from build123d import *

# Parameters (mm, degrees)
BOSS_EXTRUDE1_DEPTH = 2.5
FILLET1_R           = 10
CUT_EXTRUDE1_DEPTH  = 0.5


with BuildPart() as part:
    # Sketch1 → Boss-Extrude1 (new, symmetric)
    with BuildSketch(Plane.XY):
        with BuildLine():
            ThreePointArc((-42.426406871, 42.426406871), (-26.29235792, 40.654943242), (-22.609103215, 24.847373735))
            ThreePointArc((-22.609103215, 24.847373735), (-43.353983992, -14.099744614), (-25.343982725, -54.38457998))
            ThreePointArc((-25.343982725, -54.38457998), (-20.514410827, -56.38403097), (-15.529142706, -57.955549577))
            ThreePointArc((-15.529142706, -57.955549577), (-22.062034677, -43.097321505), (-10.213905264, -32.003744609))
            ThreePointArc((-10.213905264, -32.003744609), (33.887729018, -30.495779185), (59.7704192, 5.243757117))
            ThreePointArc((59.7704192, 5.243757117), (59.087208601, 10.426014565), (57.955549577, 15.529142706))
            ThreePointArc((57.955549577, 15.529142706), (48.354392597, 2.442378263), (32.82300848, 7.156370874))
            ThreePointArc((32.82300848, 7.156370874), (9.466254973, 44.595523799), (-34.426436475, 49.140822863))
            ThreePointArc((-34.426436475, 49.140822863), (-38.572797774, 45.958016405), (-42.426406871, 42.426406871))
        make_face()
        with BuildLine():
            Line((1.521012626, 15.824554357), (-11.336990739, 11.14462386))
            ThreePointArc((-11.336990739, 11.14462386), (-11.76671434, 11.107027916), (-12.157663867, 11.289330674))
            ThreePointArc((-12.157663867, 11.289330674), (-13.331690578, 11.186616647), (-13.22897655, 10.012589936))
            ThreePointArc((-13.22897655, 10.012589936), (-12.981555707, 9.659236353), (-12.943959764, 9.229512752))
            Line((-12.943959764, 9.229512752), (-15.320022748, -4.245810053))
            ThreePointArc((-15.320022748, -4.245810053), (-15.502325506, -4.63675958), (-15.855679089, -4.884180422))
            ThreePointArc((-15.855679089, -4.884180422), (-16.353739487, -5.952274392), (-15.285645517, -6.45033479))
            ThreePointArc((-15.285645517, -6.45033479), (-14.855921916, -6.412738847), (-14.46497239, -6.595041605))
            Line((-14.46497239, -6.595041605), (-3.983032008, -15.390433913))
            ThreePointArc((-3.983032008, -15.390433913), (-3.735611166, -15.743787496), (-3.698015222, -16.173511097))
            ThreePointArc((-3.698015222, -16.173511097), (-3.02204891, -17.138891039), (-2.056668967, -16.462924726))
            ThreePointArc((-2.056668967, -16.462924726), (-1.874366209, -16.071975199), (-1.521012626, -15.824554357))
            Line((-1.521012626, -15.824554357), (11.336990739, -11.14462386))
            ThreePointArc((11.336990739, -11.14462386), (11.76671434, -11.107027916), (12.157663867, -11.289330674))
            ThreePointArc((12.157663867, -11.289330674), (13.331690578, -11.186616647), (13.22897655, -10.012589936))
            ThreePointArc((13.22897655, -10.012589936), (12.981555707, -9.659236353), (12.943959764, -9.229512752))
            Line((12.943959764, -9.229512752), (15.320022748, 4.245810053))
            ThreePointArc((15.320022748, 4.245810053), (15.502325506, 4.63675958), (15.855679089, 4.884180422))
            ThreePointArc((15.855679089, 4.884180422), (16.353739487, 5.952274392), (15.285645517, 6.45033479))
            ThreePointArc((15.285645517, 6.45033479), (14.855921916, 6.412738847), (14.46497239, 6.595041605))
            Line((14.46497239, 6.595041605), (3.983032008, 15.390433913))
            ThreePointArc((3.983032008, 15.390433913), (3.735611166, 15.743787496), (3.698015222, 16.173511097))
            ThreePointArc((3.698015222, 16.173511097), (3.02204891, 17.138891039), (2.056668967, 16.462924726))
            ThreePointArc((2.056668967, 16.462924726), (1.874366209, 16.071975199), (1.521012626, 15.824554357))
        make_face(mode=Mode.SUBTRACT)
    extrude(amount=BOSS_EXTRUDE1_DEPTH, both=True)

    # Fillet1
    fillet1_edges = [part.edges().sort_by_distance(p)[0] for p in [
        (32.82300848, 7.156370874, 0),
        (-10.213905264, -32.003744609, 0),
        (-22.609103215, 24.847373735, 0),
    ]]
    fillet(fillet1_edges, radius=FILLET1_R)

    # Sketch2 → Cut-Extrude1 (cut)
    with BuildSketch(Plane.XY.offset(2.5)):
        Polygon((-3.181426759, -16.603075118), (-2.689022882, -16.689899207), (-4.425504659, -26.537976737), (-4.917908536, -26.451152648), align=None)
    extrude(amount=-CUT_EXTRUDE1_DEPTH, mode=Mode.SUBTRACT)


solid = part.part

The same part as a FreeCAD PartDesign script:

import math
import FreeCAD as App
import Part
import Sketcher
Q = App.Units.Quantity


def edges_at(feature, points):
    """Names of the edges that pass closest to the given points."""
    edges = feature.Shape.Edges
    near = lambda p: min(range(len(edges)), key=lambda i: edges[i].distToShape(Part.Vertex(*p))[0])
    return sorted({f"Edge{near(p) + 1}" for p in points})

doc = App.newDocument("Part")
body = doc.addObject("PartDesign::Body", "Body")

# Sketch on XY plane
sketch1 = body.newObject("Sketcher::SketchObject", "Sketch")
sketch1.AttachmentSupport = (doc.getObject("XY_Plane"), [""])
sketch1.MapMode = "FlatFace"
sketch1.addGeometry(Part.ArcOfCircle(Part.Circle(App.Vector(-35.6, 30.2, 0), App.Vector(0, 0, 1), 14), math.radians(-22), math.radians(119)), False)
sketch1.addGeometry(Part.ArcOfCircle(Part.Circle(App.Vector(6.8, -15.8, 0), App.Vector(0, 0, 1), 50.2), math.radians(126), math.radians(230)), False)
sketch1.addGeometry(Part.ArcOfCircle(Part.Circle(App.Vector(0, 0, 0), App.Vector(0, 0, 1), 60), math.radians(-114.99), math.radians(-105)), False)
sketch1.addGeometry(Part.ArcOfCircle(Part.Circle(App.Vector(-8.3, -45.9, 0), App.Vector(0, 0, 1), 14), math.radians(98), math.radians(239)), False)
sketch1.addGeometry(Part.ArcOfCircle(Part.Circle(App.Vector(10.3, 13.8, 0), App.Vector(0, 0, 1), 50.2), math.radians(-114), math.radians(-10)), False)
sketch1.addGeometry(Part.ArcOfCircle(Part.Circle(App.Vector(0, 0, 0), App.Vector(0, 0, 1), 60), math.radians(5.01), math.radians(15)), False)
sketch1.addGeometry(Part.ArcOfCircle(Part.Circle(App.Vector(43.9, 15.8, 0), App.Vector(0, 0, 1), 14), math.radians(-142), math.radians(-1)), False)
sketch1.addGeometry(Part.ArcOfCircle(Part.Circle(App.Vector(-17.1, 2, 0), App.Vector(0, 0, 1), 50.2), math.radians(6), math.radians(110)), False)
sketch1.addGeometry(Part.ArcOfCircle(Part.Circle(App.Vector(0, 0, 0), App.Vector(0, 0, 1), 60), math.radians(125.01), math.radians(135)), False)
sketch1.addGeometry(Part.LineSegment(App.Vector(-11.3, 11.1, 0), App.Vector(1.5, 15.8, 0)), False)
sketch1.addGeometry(Part.ArcOfCircle(Part.Circle(App.Vector(1.2, 16.6, 0), App.Vector(0, 0, 1), 0.8), math.radians(-70), math.radians(-10)), False)
sketch1.addGeometry(Part.ArcOfCircle(Part.Circle(App.Vector(2.9, 16.3, 0), App.Vector(0, 0, 1), 0.8), math.radians(-10), math.radians(170)), False)
sketch1.addGeometry(Part.ArcOfCircle(Part.Circle(App.Vector(4.5, 16, 0), App.Vector(0, 0, 1), 0.8), math.radians(170), math.radians(230)), False)
sketch1.addGeometry(Part.LineSegment(App.Vector(4, 15.4, 0), App.Vector(14.5, 6.6, 0)), False)
sketch1.addGeometry(Part.ArcOfCircle(Part.Circle(App.Vector(15, 7.2, 0), App.Vector(0, 0, 1), 0.8), math.radians(-130), math.radians(-70)), False)
sketch1.addGeometry(Part.ArcOfCircle(Part.Circle(App.Vector(15.6, 5.7, 0), App.Vector(0, 0, 1), 0.8), math.radians(-70), math.radians(110)), False)
sketch1.addGeometry(Part.ArcOfCircle(Part.Circle(App.Vector(16.1, 4.1, 0), App.Vector(0, 0, 1), 0.8), math.radians(110), math.radians(170)), False)
sketch1.addGeometry(Part.LineSegment(App.Vector(15.3, 4.2, 0), App.Vector(12.9, -9.2, 0)), False)
sketch1.addGeometry(Part.ArcOfCircle(Part.Circle(App.Vector(13.8, -9.4, 0), App.Vector(0, 0, 1), 0.8), math.radians(170), math.radians(230)), False)
sketch1.addGeometry(Part.ArcOfCircle(Part.Circle(App.Vector(12.7, -10.7, 0), App.Vector(0, 0, 1), 0.8), math.radians(-130), math.radians(50)), False)
sketch1.addGeometry(Part.ArcOfCircle(Part.Circle(App.Vector(11.6, -11.9, 0), App.Vector(0, 0, 1), 0.8), math.radians(50), math.radians(110)), False)
sketch1.addGeometry(Part.LineSegment(App.Vector(11.3, -11.1, 0), App.Vector(-1.5, -15.8, 0)), False)
sketch1.addGeometry(Part.ArcOfCircle(Part.Circle(App.Vector(-1.2, -16.6, 0), App.Vector(0, 0, 1), 0.8), math.radians(110), math.radians(170)), False)
sketch1.addGeometry(Part.ArcOfCircle(Part.Circle(App.Vector(-2.9, -16.3, 0), App.Vector(0, 0, 1), 0.8), math.radians(170), math.radians(350)), False)
sketch1.addGeometry(Part.ArcOfCircle(Part.Circle(App.Vector(-4.5, -16, 0), App.Vector(0, 0, 1), 0.8), math.radians(-10), math.radians(50)), False)
sketch1.addGeometry(Part.LineSegment(App.Vector(-4, -15.4, 0), App.Vector(-14.5, -6.6, 0)), False)
sketch1.addGeometry(Part.ArcOfCircle(Part.Circle(App.Vector(-15, -7.2, 0), App.Vector(0, 0, 1), 0.8), math.radians(50), math.radians(110)), False)
sketch1.addGeometry(Part.ArcOfCircle(Part.Circle(App.Vector(-15.6, -5.7, 0), App.Vector(0, 0, 1), 0.8), math.radians(110), math.radians(290)), False)
sketch1.addGeometry(Part.ArcOfCircle(Part.Circle(App.Vector(-16.1, -4.1, 0), App.Vector(0, 0, 1), 0.8), math.radians(-70), math.radians(-10)), False)
sketch1.addGeometry(Part.LineSegment(App.Vector(-15.3, -4.2, 0), App.Vector(-12.9, 9.2, 0)), False)
sketch1.addGeometry(Part.ArcOfCircle(Part.Circle(App.Vector(-13.8, 9.4, 0), App.Vector(0, 0, 1), 0.8), math.radians(-10), math.radians(50)), False)
sketch1.addGeometry(Part.ArcOfCircle(Part.Circle(App.Vector(-12.7, 10.7, 0), App.Vector(0, 0, 1), 0.8), math.radians(50), math.radians(230)), False)
sketch1.addGeometry(Part.ArcOfCircle(Part.Circle(App.Vector(-11.6, 11.9, 0), App.Vector(0, 0, 1), 0.8), math.radians(-130), math.radians(-70)), False)
sketch1.addConstraint(Sketcher.Constraint("Coincident", 0, 1, 1, 1))
sketch1.addConstraint(Sketcher.Constraint("Coincident", 1, 2, 2, 1))
sketch1.addConstraint(Sketcher.Constraint("Coincident", 2, 2, 3, 2))
sketch1.addConstraint(Sketcher.Constraint("Coincident", 3, 1, 4, 1))
sketch1.addConstraint(Sketcher.Constraint("Coincident", 4, 2, 5, 1))
sketch1.addConstraint(Sketcher.Constraint("Coincident", 5, 2, 6, 2))
sketch1.addConstraint(Sketcher.Constraint("Coincident", 6, 1, 7, 1))
sketch1.addConstraint(Sketcher.Constraint("Coincident", 7, 2, 8, 1))
sketch1.addConstraint(Sketcher.Constraint("Coincident", 8, 2, 0, 2))
sketch1.addConstraint(Sketcher.Constraint("Tangent", 9, 2, 10, 1))
sketch1.addConstraint(Sketcher.Constraint("Tangent", 10, 2, 11, 2))
sketch1.addConstraint(Sketcher.Constraint("Tangent", 11, 1, 12, 1))
sketch1.addConstraint(Sketcher.Constraint("Tangent", 12, 2, 13, 1))
sketch1.addConstraint(Sketcher.Constraint("Tangent", 13, 2, 14, 1))
sketch1.addConstraint(Sketcher.Constraint("Tangent", 14, 2, 15, 2))
sketch1.addConstraint(Sketcher.Constraint("Tangent", 15, 1, 16, 1))
sketch1.addConstraint(Sketcher.Constraint("Tangent", 16, 2, 17, 1))
sketch1.addConstraint(Sketcher.Constraint("Tangent", 17, 2, 18, 1))
sketch1.addConstraint(Sketcher.Constraint("Tangent", 18, 2, 19, 2))
sketch1.addConstraint(Sketcher.Constraint("Tangent", 19, 1, 20, 1))
sketch1.addConstraint(Sketcher.Constraint("Tangent", 20, 2, 21, 1))
sketch1.addConstraint(Sketcher.Constraint("Tangent", 21, 2, 22, 1))
sketch1.addConstraint(Sketcher.Constraint("Tangent", 22, 2, 23, 2))
sketch1.addConstraint(Sketcher.Constraint("Tangent", 23, 1, 24, 1))
sketch1.addConstraint(Sketcher.Constraint("Tangent", 24, 2, 25, 1))
sketch1.addConstraint(Sketcher.Constraint("Tangent", 25, 2, 26, 1))
sketch1.addConstraint(Sketcher.Constraint("Tangent", 26, 2, 27, 2))
sketch1.addConstraint(Sketcher.Constraint("Tangent", 27, 1, 28, 1))
sketch1.addConstraint(Sketcher.Constraint("Tangent", 28, 2, 29, 1))
sketch1.addConstraint(Sketcher.Constraint("Tangent", 29, 2, 30, 1))
sketch1.addConstraint(Sketcher.Constraint("Tangent", 30, 2, 31, 2))
sketch1.addConstraint(Sketcher.Constraint("Tangent", 31, 1, 32, 1))
sketch1.addConstraint(Sketcher.Constraint("Tangent", 32, 2, 9, 1))
sketch1.addConstraint(Sketcher.Constraint("Coincident", 2, 3, -1, 1))
sketch1.addConstraint(Sketcher.Constraint("Coincident", 5, 3, -1, 1))
sketch1.addConstraint(Sketcher.Constraint("Coincident", 8, 3, -1, 1))
sketch1.addConstraint(Sketcher.Constraint("Equal", 0, 3))
sketch1.addConstraint(Sketcher.Constraint("Equal", 1, 4))
sketch1.addConstraint(Sketcher.Constraint("Equal", 2, 5))
sketch1.addConstraint(Sketcher.Constraint("Equal", 3, 6))
sketch1.addConstraint(Sketcher.Constraint("Equal", 4, 7))
sketch1.addConstraint(Sketcher.Constraint("Equal", 5, 8))
sketch1.addConstraint(Sketcher.Constraint("Equal", 10, 11))
sketch1.addConstraint(Sketcher.Constraint("Equal", 11, 12))
sketch1.addConstraint(Sketcher.Constraint("Equal", 12, 14))
sketch1.addConstraint(Sketcher.Constraint("Equal", 14, 15))
sketch1.addConstraint(Sketcher.Constraint("Equal", 15, 16))
sketch1.addConstraint(Sketcher.Constraint("Equal", 16, 18))
sketch1.addConstraint(Sketcher.Constraint("Equal", 18, 19))
sketch1.addConstraint(Sketcher.Constraint("Equal", 19, 20))
sketch1.addConstraint(Sketcher.Constraint("Equal", 20, 22))
sketch1.addConstraint(Sketcher.Constraint("Equal", 22, 23))
sketch1.addConstraint(Sketcher.Constraint("Equal", 23, 24))
sketch1.addConstraint(Sketcher.Constraint("Equal", 24, 26))
sketch1.addConstraint(Sketcher.Constraint("Equal", 26, 27))
sketch1.addConstraint(Sketcher.Constraint("Equal", 27, 28))
sketch1.addConstraint(Sketcher.Constraint("Equal", 28, 30))
sketch1.addConstraint(Sketcher.Constraint("Equal", 30, 31))
sketch1.addConstraint(Sketcher.Constraint("Equal", 31, 32))
sketch1.addConstraint(Sketcher.Constraint("Symmetric", 10, 3, 22, 3, -1, 1))
sketch1.addConstraint(Sketcher.Constraint("Symmetric", 14, 3, 26, 3, -1, 1))
sketch1.addConstraint(Sketcher.Constraint("Symmetric", 18, 3, 30, 3, -1, 1))
sketch1.addConstraint(Sketcher.Constraint("Parallel", 9, 21))
sketch1.addConstraint(Sketcher.Constraint("Parallel", 13, 25))
sketch1.addConstraint(Sketcher.Constraint("Parallel", 17, 29))
sketch1.addConstraint(Sketcher.Constraint("Equal", 9, 13))
sketch1.addConstraint(Sketcher.Constraint("Equal", 13, 17))
sketch1.addConstraint(Sketcher.Constraint("Radius", 2, 60.0))
sketch1.addConstraint(Sketcher.Constraint("Angle", 9, Q("20 deg")))
sketch1.addConstraint(Sketcher.Constraint("Angle", 13, Q("-40 deg")))
sketch1.addConstraint(Sketcher.Constraint("Angle", 17, Q("-100 deg")))
sketch1.addConstraint(Sketcher.Constraint("Radius", 0, 14.04101))
sketch1.addConstraint(Sketcher.Constraint("DistanceY", -1, 1, 0, 3, 30.151001))
sketch1.addConstraint(Sketcher.Constraint("Radius", 1, 50.214812))
sketch1.addConstraint(Sketcher.Constraint("Radius", 10, 0.833333))
sketch1.addConstraint(Sketcher.Constraint("Distance", 9, 13.683201))
sketch1.addConstraint(Sketcher.Constraint("DistanceY", 20, 3, -1, 1, 11.927701))
sketch1.addConstraint(Sketcher.Constraint("DistanceX", 1, 3, 4, 3, 3.4645))
sketch1.addConstraint(Sketcher.Constraint("DistanceY", 1, 3, 6, 3, 31.5956))
sketch1.addConstraint(Sketcher.Constraint("DistanceY", 7, 3, 10, 3, 14.607401))
sketch1.addConstraint(Sketcher.Constraint("DistanceX", 11, 3, 4, 3, 7.418099))
sketch1.addConstraint(Sketcher.Constraint("DistanceY", 16, 3, 12, 3, 11.927701))
sketch1.addConstraint(Sketcher.Constraint("DistanceX", 2, 2, 23, 3, 12.651801))
sketch1.addConstraint(Sketcher.Constraint("DistanceY", 4, 2, 15, 3, 0.4235))
sketch1.addConstraint(Sketcher.Constraint("DistanceX", 8, 2, 32, 3, 30.804399))
sketch1.addConstraint(Sketcher.Constraint("DistanceX", 0, 3, -1, 1, 35.60993))
sketch1.addConstraint(Sketcher.Constraint("DistanceX", -1, 1, 1, 3, 6.830941))
sketch1.addConstraint(Sketcher.Constraint("DistanceX", 7, 3, -1, 1, 17.126382))
sketch1.addConstraint(Sketcher.Constraint("DistanceX", -1, 1, 19, 3, 12.69332))
sketch1.addConstraint(Sketcher.Constraint("DistanceX", 31, 3, -1, 1, 12.69332))
sketch1.addConstraint(Sketcher.Constraint("DistanceY", 1, 2, -1, 1, 54.38458))
sketch1.addConstraint(Sketcher.Constraint("DistanceX", -1, 1, 4, 2, 59.770419))
sketch1.addConstraint(Sketcher.Constraint("DistanceX", -1, 1, 5, 2, 57.95555))
sketch1.addConstraint(Sketcher.Constraint("DistanceX", 22, 2, -1, 1, 2.056669))
sketch1.addConstraint(Sketcher.Constraint("DistanceX", 27, 1, -1, 1, 15.855679))
sketch1.addConstraint(Sketcher.Constraint("DistanceX", 3, 3, 1, 3, 15.137509))
pad1 = body.newObject("PartDesign::Pad", "Pad")
pad1.Profile = sketch1
pad1.Length = 5
pad1.Midplane = True
doc.recompute()

fillet = body.newObject("PartDesign::Fillet", "Fillet")
fillet.Base = (pad1, edges_at(pad1, [(32.823, 7.156, 0), (-10.214, -32.004, 0), (-22.609, 24.847, 0)]))
fillet.Radius = 10

# Sketch on XY plane
sketch2 = body.newObject("Sketcher::SketchObject", "Sketch001")
sketch2.AttachmentSupport = (doc.getObject("XY_Plane"), [""])
sketch2.MapMode = "FlatFace"
sketch2.AttachmentOffset = App.Placement(App.Vector(0, 0, 2.5), App.Rotation())
sketch2.addGeometry(Part.LineSegment(App.Vector(-2.7, -16.7, 0), App.Vector(-3.2, -16.6, 0)), False)
sketch2.addGeometry(Part.LineSegment(App.Vector(-3.2, -16.6, 0), App.Vector(-4.9, -26.5, 0)), False)
sketch2.addGeometry(Part.LineSegment(App.Vector(-4.9, -26.5, 0), App.Vector(-4.4, -26.5, 0)), False)
sketch2.addGeometry(Part.LineSegment(App.Vector(-4.4, -26.5, 0), App.Vector(-2.7, -16.7, 0)), False)
sketch2.addConstraint(Sketcher.Constraint("Coincident", 0, 2, 1, 1))
sketch2.addConstraint(Sketcher.Constraint("Coincident", 1, 2, 2, 1))
sketch2.addConstraint(Sketcher.Constraint("Coincident", 2, 2, 3, 1))
sketch2.addConstraint(Sketcher.Constraint("Coincident", 3, 2, 0, 1))
sketch2.addConstraint(Sketcher.Constraint("Perpendicular", 0, 1))
sketch2.addConstraint(Sketcher.Constraint("Perpendicular", 1, 2))
sketch2.addConstraint(Sketcher.Constraint("Perpendicular", 2, 3))
sketch2.addConstraint(Sketcher.Constraint("Angle", 0, Q("170 deg")))
sketch2.addConstraint(Sketcher.Constraint("Distance", 1, 10.0))
sketch2.addConstraint(Sketcher.Constraint("Distance", 0, 0.5))
sketch2.addConstraint(Sketcher.Constraint("DistanceY", 3, 2, -1, 1, 16.689899))
sketch2.addConstraint(Sketcher.Constraint("DistanceX", 1, 2, -1, 1, 4.917909))
pocket1 = body.newObject("PartDesign::Pocket", "Pocket")
pocket1.Profile = sketch2
pocket1.Length = 0.5

doc.recompute()
